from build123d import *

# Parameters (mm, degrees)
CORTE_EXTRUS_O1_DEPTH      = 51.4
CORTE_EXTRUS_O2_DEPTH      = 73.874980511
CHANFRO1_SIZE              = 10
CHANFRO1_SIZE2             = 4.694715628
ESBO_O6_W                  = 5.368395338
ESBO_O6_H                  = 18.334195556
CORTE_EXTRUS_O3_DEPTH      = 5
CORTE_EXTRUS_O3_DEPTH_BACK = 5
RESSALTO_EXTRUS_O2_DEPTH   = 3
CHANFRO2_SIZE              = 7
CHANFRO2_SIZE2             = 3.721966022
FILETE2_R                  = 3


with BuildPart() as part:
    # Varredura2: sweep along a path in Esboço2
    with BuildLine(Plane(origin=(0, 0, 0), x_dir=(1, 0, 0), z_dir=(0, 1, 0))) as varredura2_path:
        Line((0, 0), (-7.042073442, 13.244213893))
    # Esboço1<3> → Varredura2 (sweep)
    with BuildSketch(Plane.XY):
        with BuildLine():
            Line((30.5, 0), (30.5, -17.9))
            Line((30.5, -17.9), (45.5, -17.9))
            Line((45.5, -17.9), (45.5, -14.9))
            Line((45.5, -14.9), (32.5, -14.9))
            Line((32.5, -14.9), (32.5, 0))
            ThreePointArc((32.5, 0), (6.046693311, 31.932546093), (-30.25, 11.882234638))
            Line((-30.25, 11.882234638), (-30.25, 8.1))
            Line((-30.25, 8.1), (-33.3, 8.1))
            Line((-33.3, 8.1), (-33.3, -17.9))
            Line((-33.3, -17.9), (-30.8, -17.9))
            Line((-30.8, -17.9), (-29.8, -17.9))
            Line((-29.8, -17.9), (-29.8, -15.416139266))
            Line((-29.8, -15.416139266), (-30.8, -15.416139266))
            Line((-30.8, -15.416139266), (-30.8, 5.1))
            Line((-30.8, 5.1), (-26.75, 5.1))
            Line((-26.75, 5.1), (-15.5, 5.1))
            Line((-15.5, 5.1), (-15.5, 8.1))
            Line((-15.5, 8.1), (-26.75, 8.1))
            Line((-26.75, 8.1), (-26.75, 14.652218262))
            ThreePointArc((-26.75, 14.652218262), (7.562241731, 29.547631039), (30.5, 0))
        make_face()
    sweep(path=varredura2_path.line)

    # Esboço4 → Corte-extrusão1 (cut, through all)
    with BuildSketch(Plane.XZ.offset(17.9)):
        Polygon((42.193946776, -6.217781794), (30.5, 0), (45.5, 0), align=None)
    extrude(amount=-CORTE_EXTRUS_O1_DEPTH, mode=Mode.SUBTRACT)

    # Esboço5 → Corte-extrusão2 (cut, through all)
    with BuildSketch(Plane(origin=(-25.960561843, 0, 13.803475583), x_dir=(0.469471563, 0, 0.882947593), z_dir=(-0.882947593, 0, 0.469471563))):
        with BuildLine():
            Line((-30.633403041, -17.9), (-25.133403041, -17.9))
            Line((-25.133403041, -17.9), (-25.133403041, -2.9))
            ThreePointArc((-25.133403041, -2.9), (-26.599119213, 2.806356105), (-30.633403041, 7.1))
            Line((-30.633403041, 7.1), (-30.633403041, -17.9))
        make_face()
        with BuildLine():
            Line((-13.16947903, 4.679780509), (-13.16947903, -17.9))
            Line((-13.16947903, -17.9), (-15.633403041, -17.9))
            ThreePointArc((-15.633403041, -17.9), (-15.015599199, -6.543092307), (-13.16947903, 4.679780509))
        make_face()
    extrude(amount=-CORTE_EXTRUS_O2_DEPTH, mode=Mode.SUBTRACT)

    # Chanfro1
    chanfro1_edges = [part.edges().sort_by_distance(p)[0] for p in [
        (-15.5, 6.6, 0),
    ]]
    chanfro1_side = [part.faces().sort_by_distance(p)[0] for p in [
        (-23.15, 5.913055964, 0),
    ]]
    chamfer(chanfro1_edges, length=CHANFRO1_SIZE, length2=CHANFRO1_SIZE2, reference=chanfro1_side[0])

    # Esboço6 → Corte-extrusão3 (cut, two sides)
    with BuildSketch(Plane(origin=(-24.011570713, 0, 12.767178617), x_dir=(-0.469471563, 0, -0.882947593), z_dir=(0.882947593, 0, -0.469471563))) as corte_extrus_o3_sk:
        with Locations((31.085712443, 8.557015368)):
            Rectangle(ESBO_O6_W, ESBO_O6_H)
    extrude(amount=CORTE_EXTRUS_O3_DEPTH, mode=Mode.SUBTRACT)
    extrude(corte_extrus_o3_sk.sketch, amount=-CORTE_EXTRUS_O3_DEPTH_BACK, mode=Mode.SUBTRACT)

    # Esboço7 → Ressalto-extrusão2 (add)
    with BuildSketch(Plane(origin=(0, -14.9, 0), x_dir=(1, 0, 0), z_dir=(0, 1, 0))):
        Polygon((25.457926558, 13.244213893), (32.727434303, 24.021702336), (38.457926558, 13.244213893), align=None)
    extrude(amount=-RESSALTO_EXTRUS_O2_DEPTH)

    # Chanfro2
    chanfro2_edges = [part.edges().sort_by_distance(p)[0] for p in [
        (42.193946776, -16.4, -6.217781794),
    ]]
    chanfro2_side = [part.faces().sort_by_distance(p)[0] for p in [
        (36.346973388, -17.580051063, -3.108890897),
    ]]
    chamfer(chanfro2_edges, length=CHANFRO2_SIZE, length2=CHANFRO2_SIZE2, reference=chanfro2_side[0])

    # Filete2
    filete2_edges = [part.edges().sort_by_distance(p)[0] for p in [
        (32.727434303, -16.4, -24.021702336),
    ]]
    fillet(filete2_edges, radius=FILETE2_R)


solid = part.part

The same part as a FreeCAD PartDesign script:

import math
import FreeCAD as App
import Part
import Sketcher
Q = App.Units.Quantity


def edges_at(feature, points):
    """Names of the edges that pass closest to the given points."""
    edges = feature.Shape.Edges
    near = lambda p: min(range(len(edges)), key=lambda i: edges[i].distToShape(Part.Vertex(*p))[0])
    return sorted({f"Edge{near(p) + 1}" for p in points})


def add_polygon(sketch, points):
    """Adds a closed chain of lines whose ends are joined by coincident constraints."""
    first, n = sketch.GeometryCount, len(points)
    for a, b in zip(points, points[1:] + points[:1]):
        sketch.addGeometry(Part.LineSegment(App.Vector(*a, 0), App.Vector(*b, 0)), False)
    for i in range(n):
        sketch.addConstraint(Sketcher.Constraint("Coincident", first + i, 2, first + (i + 1) % n, 1))

doc = App.newDocument("Part")
body = doc.addObject("PartDesign::Body", "Body")

sketch1 = body.newObject("Sketcher::SketchObject", "Sketch")
sketch1.AttachmentSupport = (doc.getObject("XY_Plane"), [""])
sketch1.MapMode = "FlatFace"
sketch1.addGeometry([
    Part.LineSegment(App.Vector(30.5, 0, 0), App.Vector(30.5, -17.9, 0)),
    Part.LineSegment(App.Vector(30.5, -17.9, 0), App.Vector(45.5, -17.9, 0)),
    Part.LineSegment(App.Vector(45.5, -17.9, 0), App.Vector(45.5, -14.9, 0)),
    Part.LineSegment(App.Vector(45.5, -14.9, 0), App.Vector(32.5, -14.9, 0)),
    Part.LineSegment(App.Vector(32.5, -14.9, 0), App.Vector(32.5, 0, 0)),
    Part.ArcOfCircle(Part.Circle(App.Vector(0, 0, 0), App.Vector(0, 0, 1), 32.5), math.radians(0), math.radians(158.555043)),
    Part.LineSegment(App.Vector(-30.25, 11.882235, 0), App.Vector(-30.25, 8.1, 0)),
    Part.LineSegment(App.Vector(-30.25, 8.1, 0), App.Vector(-33.3, 8.1, 0)),
    Part.LineSegment(App.Vector(-33.3, 8.1, 0), App.Vector(-33.3, -17.9, 0)),
    Part.LineSegment(App.Vector(-33.3, -17.9, 0), App.Vector(-29.8, -17.9, 0)),
    Part.LineSegment(App.Vector(-29.8, -17.9, 0), App.Vector(-29.8, -15.416139, 0)),
    Part.LineSegment(App.Vector(-29.8, -15.416139, 0), App.Vector(-30.8, -15.416139, 0)),
    Part.LineSegment(App.Vector(-30.8, -15.416139, 0), App.Vector(-30.8, 5.1, 0)),
    Part.LineSegment(App.Vector(-30.8, 5.1, 0), App.Vector(-15.5, 5.1, 0)),
    Part.LineSegment(App.Vector(-15.5, 5.1, 0), App.Vector(-15.5, 8.1, 0)),
    Part.LineSegment(App.Vector(-15.5, 8.1, 0), App.Vector(-26.75, 8.1, 0)),
    Part.LineSegment(App.Vector(-26.75, 8.1, 0), App.Vector(-26.75, 14.652218, 0)),
    Part.ArcOfCircle(Part.Circle(App.Vector(0, 0, 0), App.Vector(0, 0, 1), 30.5), math.radians(0), math.radians(151.288431)),
], False)
sketch1.addConstraint([
    Sketcher.Constraint("Coincident", 0, 2, 1, 1),
    Sketcher.Constraint("Coincident", 1, 2, 2, 1),
    Sketcher.Constraint("Coincident", 2, 2, 3, 1),
    Sketcher.Constraint("Coincident", 3, 2, 4, 1),
    Sketcher.Constraint("Tangent", 4, 2, 5, 1),
    Sketcher.Constraint("Coincident", 5, 2, 6, 1),
    Sketcher.Constraint("Coincident", 6, 2, 7, 1),
    Sketcher.Constraint("Coincident", 7, 2, 8, 1),
    Sketcher.Constraint("Coincident", 8, 2, 9, 1),
    Sketcher.Constraint("Coincident", 9, 2, 10, 1),
    Sketcher.Constraint("Coincident", 10, 2, 11, 1),
    Sketcher.Constraint("Coincident", 11, 2, 12, 1),
    Sketcher.Constraint("Coincident", 12, 2, 13, 1),
    Sketcher.Constraint("Coincident", 13, 2, 14, 1),
    Sketcher.Constraint("Coincident", 14, 2, 15, 1),
    Sketcher.Constraint("Coincident", 15, 2, 16, 1),
    Sketcher.Constraint("Coincident", 16, 2, 17, 2),
    Sketcher.Constraint("Tangent", 17, 1, 0, 1),
    Sketcher.Constraint("Vertical", 0),
    Sketcher.Constraint("Horizontal", 1),
    Sketcher.Constraint("Vertical", 2),
    Sketcher.Constraint("Horizontal", 3),
    Sketcher.Constraint("Vertical", 4),
    Sketcher.Constraint("Vertical", 6),
    Sketcher.Constraint("Horizontal", 7),
    Sketcher.Constraint("Vertical", 8),
    Sketcher.Constraint("Horizontal", 9),
    Sketcher.Constraint("Vertical", 10),
    Sketcher.Constraint("Horizontal", 11),
    Sketcher.Constraint("Vertical", 12),
    Sketcher.Constraint("Horizontal", 13),
    Sketcher.Constraint("Vertical", 14),
    Sketcher.Constraint("Horizontal", 15),
    Sketcher.Constraint("Vertical", 16),
    Sketcher.Constraint("Coincident", 5, 3, -1, 1),
    Sketcher.Constraint("Coincident", 17, 3, -1, 1),
    Sketcher.Constraint("Horizontal", 1, 2, 8, 2),
    Sketcher.Constraint("Horizontal", 7, 2, 14, 2),
    Sketcher.Constraint("Equal", 2, 14),
    Sketcher.Constraint("Radius", 5, Q("32.5 mm")),
    Sketcher.Constraint("Radius", 17, Q("30.5 mm")),
    Sketcher.Constraint("DistanceX", 1, 1, 1, 2, Q("15 mm")),
    Sketcher.Constraint("DistanceX", 11, 2, 11, 1, Q("1 mm")),
    Sketcher.Constraint("DistanceY", 2, 1, 2, 2, Q("3 mm")),
    Sketcher.Constraint("DistanceY", 8, 2, 8, 1, Q("26 mm")),
    Sketcher.Constraint("DistanceX", 9, 1, 9, 2, Q("3.5 mm")),
    Sketcher.Constraint("DistanceX", 13, 1, 13, 2, Q("15.3 mm")),
    Sketcher.Constraint("DistanceY", 0, 2, 0, 1, Q("17.9 mm")),
    Sketcher.Constraint("DistanceX", 7, 2, 7, 1, Q("3.05 mm")),
    Sketcher.Constraint("DistanceX", 15, 2, 15, 1, Q("11.25 mm")),
    Sketcher.Constraint("DistanceX", 7, 2, -1, 1, Q("33.3 mm")),
    Sketcher.Constraint("DistanceY", 10, 1, 10, 2, Q("2.483861 mm")),
])

sketch2 = body.newObject("Sketcher::SketchObject", "Sketch001")
sketch2.Placement = App.Placement(App.Vector(0, 0, 0), App.Rotation(App.Vector(-0.469471563, 0, -0.882947593), App.Vector(0, 1, 0), App.Vector(0.882947593, 0, -0.469471563), "ZXY"))
sketch2.addGeometry(Part.LineSegment(App.Vector(0, 0, 0), App.Vector(15, 0, 0)), False)
sketch2.addConstraint([
    Sketcher.Constraint("Horizontal", 0),
    Sketcher.Constraint("Coincident", 0, 1, -1, 1),
    Sketcher.Constraint("DistanceX", 0, 1, 0, 2, Q("15 mm")),
])
doc.recompute()

additivepipe = body.newObject("PartDesign::AdditivePipe", "AdditivePipe")
additivepipe.Profile = sketch1
additivepipe.Spine = (sketch2, ["Edge1"])

sketch3 = body.newObject("Sketcher::SketchObject", "Sketch002")
sketch3.AttachmentSupport = (doc.getObject("XZ_Plane"), [""])
sketch3.MapMode = "FlatFace"
sketch3.AttachmentOffset = App.Placement(App.Vector(0, 0, 17.9), App.Rotation())
add_polygon(sketch3, [(30.5, 0), (42.193947, -6.217782), (45.5, 0)])
sketch3.addConstraint([
    Sketcher.Constraint("Horizontal", 2),
    Sketcher.Constraint("PointOnObject", 1, 2, -1),
    Sketcher.Constraint("Perpendicular", 0, 1),
    Sketcher.Constraint("DistanceX", 2, 2, 2, 1, Q("15 mm")),
    Sketcher.Constraint("Angle", 0, Q("-28 deg")),
    Sketcher.Constraint("DistanceX", -1, 1, 1, 2, Q("45.5 mm")),
])
pocket1 = body.newObject("PartDesign::Pocket", "Pocket")
pocket1.Profile = sketch3
pocket1.Type = "ThroughAll"

sketch4 = body.newObject("Sketcher::SketchObject", "Sketch003")
sketch4.Placement = App.Placement(App.Vector(-25.960562, 0, 13.803476), App.Rotation(App.Vector(0.469471563, 0, 0.882947593), App.Vector(0, 1, 0), App.Vector(-0.882947593, 0, 0.469471563), "ZXY"))
sketch4.addGeometry([
    Part.LineSegment(App.Vector(-30.633403, -17.9, 0), App.Vector(-25.133403, -17.9, 0)),
    Part.LineSegment(App.Vector(-25.133403, -17.9, 0), App.Vector(-25.133403, -2.9, 0)),
    Part.ArcOfCircle(Part.Circle(App.Vector(-36.974312, -2.9, 0), App.Vector(0, 0, 1), 11.840909), math.radians(0), math.radians(57.621588)),
    Part.LineSegment(App.Vector(-30.633403, 7.1, 0), App.Vector(-30.633403, -17.9, 0)),
    Part.LineSegment(App.Vector(-13.169479, -17.9, 0), App.Vector(-13.169479, 4.679781, 0)),
    Part.ArcOfCircle(Part.Circle(App.Vector(89.060859, -17.9, 0), App.Vector(0, 0, 1), 104.694262), math.radians(167.544955), math.radians(180)),
    Part.LineSegment(App.Vector(-15.633403, -17.9, 0), App.Vector(-13.169479, -17.9, 0)),
], False)
sketch4.addConstraint([
    Sketcher.Constraint("Coincident", 0, 2, 1, 1),
    Sketcher.Constraint("Tangent", 1, 2, 2, 1),
    Sketcher.Constraint("Coincident", 2, 2, 3, 1),
    Sketcher.Constraint("Coincident", 3, 2, 0, 1),
    Sketcher.Constraint("Coincident", 4, 2, 5, 1),
    Sketcher.Constraint("Coincident", 5, 2, 6, 1),
    Sketcher.Constraint("Coincident", 6, 2, 4, 1),
    Sketcher.Constraint("Horizontal", 0),
    Sketcher.Constraint("Vertical", 1),
    Sketcher.Constraint("Vertical", 3),
    Sketcher.Constraint("Vertical", 4),
    Sketcher.Constraint("Horizontal", 6),
    Sketcher.Constraint("Horizontal", 5, 3, 0, 2),
    Sketcher.Constraint("Horizontal", 3, 2, 5, 2),
    Sketcher.Constraint("DistanceY", 1, 1, 1, 2, Q("15 mm")),
    Sketcher.Constraint("DistanceY", 3, 2, 3, 1, Q("25 mm")),
    Sketcher.Constraint("DistanceX", 0, 1, 0, 2, Q("5.5 mm")),
    Sketcher.Constraint("DistanceX", 3, 2, 5, 2, Q("15 mm")),
    Sketcher.Constraint("DistanceY", 2, 3, -1, 1, Q("2.9 mm")),
    Sketcher.Constraint("Radius", 5, Q("104.694262 mm")),
    Sketcher.Constraint("DistanceY", 4, 1, 4, 2, Q("22.579781 mm")),
    Sketcher.Constraint("DistanceX", -1, 1, 5, 3, Q("89.060859 mm")),
])
pocket2 = body.newObject("PartDesign::Pocket", "Pocket001")
pocket2.Profile = sketch4
pocket2.Type = "ThroughAll"
doc.recompute()

chamfer = body.newObject("PartDesign::Chamfer", "Chamfer")
chamfer.Base = (pocket2, edges_at(pocket2, [(-15.5, 6.6, 0)]))
chamfer.ChamferType = "Two distances"
chamfer.Size = 10
chamfer.Size2 = 4.694716

sketch5 = body.newObject("Sketcher::SketchObject", "Sketch004")
sketch5.Placement = App.Placement(App.Vector(-24.011571, 0, 12.767179), App.Rotation(App.Vector(-0.469471563, 0, -0.882947593), App.Vector(0, 1, 0), App.Vector(0.882947593, 0, -0.469471563), "ZXY"))
add_polygon(sketch5, [(28.401515, 17.724113), (28.401515, -0.610082), (33.76991, -0.610082), (33.76991, 17.724113)])
sketch5.addConstraint([
    Sketcher.Constraint("Vertical", 0),
    Sketcher.Constraint("Horizontal", 1),
    Sketcher.Constraint("Vertical", 2),
    Sketcher.Constraint("Horizontal", 3),
    Sketcher.Constraint("DistanceX", 1, 1, 1, 2, Q("5.368395 mm")),
    Sketcher.Constraint("DistanceY", 0, 2, 0, 1, Q("18.334196 mm")),
    Sketcher.Constraint("DistanceX", -1, 1, 1, 2, Q("33.76991 mm")),
    Sketcher.Constraint("DistanceY", 0, 2, -1, 1, Q("0.610082 mm")),
])
pocket3 = body.newObject("PartDesign::Pocket", "Pocket002")
pocket3.Profile = sketch5
pocket3.Type = "ThroughAll"
pocket3.Midplane = True

sketch6 = body.newObject("Sketcher::SketchObject", "Sketch005")
sketch6.AttachmentSupport = (doc.getObject("XZ_Plane"), [""])
sketch6.MapMode = "FlatFace"
sketch6.AttachmentOffset = App.Placement(App.Vector(0, 0, 14.9), App.Rotation())
add_polygon(sketch6, [(32.727434, -24.021702), (25.457927, -13.244214), (38.457927, -13.244214)])
sketch6.addConstraint([
    Sketcher.Constraint("Horizontal", 1),
    Sketcher.Constraint("DistanceX", 1, 1, 1, 2, Q("13 mm")),
    Sketcher.Constraint("Angle", 0, Q("124 deg")),
    Sketcher.Constraint("Angle", 2, Q("-118 deg")),
    Sketcher.Constraint("DistanceX", -1, 1, 0, 2, Q("25.457927 mm")),
    Sketcher.Constraint("DistanceY", 0, 2, -1, 1, Q("13.244214 mm")),
])
pad1 = body.newObject("PartDesign::Pad", "Pad")
pad1.Profile = sketch6
pad1.Length = 3
doc.recompute()

chamfer2 = body.newObject("PartDesign::Chamfer", "Chamfer001")
chamfer2.Base = (pad1, edges_at(pad1, [(42.194, -16.4, -6.218)]))
chamfer2.ChamferType = "Two distances"
chamfer2.Size = 7
chamfer2.Size2 = 3.721966
doc.recompute()

fillet = body.newObject("PartDesign::Fillet", "Fillet")
fillet.Base = (chamfer2, edges_at(chamfer2, [(32.727, -16.4, -24.022)]))
fillet.Radius = 3

doc.recompute()
